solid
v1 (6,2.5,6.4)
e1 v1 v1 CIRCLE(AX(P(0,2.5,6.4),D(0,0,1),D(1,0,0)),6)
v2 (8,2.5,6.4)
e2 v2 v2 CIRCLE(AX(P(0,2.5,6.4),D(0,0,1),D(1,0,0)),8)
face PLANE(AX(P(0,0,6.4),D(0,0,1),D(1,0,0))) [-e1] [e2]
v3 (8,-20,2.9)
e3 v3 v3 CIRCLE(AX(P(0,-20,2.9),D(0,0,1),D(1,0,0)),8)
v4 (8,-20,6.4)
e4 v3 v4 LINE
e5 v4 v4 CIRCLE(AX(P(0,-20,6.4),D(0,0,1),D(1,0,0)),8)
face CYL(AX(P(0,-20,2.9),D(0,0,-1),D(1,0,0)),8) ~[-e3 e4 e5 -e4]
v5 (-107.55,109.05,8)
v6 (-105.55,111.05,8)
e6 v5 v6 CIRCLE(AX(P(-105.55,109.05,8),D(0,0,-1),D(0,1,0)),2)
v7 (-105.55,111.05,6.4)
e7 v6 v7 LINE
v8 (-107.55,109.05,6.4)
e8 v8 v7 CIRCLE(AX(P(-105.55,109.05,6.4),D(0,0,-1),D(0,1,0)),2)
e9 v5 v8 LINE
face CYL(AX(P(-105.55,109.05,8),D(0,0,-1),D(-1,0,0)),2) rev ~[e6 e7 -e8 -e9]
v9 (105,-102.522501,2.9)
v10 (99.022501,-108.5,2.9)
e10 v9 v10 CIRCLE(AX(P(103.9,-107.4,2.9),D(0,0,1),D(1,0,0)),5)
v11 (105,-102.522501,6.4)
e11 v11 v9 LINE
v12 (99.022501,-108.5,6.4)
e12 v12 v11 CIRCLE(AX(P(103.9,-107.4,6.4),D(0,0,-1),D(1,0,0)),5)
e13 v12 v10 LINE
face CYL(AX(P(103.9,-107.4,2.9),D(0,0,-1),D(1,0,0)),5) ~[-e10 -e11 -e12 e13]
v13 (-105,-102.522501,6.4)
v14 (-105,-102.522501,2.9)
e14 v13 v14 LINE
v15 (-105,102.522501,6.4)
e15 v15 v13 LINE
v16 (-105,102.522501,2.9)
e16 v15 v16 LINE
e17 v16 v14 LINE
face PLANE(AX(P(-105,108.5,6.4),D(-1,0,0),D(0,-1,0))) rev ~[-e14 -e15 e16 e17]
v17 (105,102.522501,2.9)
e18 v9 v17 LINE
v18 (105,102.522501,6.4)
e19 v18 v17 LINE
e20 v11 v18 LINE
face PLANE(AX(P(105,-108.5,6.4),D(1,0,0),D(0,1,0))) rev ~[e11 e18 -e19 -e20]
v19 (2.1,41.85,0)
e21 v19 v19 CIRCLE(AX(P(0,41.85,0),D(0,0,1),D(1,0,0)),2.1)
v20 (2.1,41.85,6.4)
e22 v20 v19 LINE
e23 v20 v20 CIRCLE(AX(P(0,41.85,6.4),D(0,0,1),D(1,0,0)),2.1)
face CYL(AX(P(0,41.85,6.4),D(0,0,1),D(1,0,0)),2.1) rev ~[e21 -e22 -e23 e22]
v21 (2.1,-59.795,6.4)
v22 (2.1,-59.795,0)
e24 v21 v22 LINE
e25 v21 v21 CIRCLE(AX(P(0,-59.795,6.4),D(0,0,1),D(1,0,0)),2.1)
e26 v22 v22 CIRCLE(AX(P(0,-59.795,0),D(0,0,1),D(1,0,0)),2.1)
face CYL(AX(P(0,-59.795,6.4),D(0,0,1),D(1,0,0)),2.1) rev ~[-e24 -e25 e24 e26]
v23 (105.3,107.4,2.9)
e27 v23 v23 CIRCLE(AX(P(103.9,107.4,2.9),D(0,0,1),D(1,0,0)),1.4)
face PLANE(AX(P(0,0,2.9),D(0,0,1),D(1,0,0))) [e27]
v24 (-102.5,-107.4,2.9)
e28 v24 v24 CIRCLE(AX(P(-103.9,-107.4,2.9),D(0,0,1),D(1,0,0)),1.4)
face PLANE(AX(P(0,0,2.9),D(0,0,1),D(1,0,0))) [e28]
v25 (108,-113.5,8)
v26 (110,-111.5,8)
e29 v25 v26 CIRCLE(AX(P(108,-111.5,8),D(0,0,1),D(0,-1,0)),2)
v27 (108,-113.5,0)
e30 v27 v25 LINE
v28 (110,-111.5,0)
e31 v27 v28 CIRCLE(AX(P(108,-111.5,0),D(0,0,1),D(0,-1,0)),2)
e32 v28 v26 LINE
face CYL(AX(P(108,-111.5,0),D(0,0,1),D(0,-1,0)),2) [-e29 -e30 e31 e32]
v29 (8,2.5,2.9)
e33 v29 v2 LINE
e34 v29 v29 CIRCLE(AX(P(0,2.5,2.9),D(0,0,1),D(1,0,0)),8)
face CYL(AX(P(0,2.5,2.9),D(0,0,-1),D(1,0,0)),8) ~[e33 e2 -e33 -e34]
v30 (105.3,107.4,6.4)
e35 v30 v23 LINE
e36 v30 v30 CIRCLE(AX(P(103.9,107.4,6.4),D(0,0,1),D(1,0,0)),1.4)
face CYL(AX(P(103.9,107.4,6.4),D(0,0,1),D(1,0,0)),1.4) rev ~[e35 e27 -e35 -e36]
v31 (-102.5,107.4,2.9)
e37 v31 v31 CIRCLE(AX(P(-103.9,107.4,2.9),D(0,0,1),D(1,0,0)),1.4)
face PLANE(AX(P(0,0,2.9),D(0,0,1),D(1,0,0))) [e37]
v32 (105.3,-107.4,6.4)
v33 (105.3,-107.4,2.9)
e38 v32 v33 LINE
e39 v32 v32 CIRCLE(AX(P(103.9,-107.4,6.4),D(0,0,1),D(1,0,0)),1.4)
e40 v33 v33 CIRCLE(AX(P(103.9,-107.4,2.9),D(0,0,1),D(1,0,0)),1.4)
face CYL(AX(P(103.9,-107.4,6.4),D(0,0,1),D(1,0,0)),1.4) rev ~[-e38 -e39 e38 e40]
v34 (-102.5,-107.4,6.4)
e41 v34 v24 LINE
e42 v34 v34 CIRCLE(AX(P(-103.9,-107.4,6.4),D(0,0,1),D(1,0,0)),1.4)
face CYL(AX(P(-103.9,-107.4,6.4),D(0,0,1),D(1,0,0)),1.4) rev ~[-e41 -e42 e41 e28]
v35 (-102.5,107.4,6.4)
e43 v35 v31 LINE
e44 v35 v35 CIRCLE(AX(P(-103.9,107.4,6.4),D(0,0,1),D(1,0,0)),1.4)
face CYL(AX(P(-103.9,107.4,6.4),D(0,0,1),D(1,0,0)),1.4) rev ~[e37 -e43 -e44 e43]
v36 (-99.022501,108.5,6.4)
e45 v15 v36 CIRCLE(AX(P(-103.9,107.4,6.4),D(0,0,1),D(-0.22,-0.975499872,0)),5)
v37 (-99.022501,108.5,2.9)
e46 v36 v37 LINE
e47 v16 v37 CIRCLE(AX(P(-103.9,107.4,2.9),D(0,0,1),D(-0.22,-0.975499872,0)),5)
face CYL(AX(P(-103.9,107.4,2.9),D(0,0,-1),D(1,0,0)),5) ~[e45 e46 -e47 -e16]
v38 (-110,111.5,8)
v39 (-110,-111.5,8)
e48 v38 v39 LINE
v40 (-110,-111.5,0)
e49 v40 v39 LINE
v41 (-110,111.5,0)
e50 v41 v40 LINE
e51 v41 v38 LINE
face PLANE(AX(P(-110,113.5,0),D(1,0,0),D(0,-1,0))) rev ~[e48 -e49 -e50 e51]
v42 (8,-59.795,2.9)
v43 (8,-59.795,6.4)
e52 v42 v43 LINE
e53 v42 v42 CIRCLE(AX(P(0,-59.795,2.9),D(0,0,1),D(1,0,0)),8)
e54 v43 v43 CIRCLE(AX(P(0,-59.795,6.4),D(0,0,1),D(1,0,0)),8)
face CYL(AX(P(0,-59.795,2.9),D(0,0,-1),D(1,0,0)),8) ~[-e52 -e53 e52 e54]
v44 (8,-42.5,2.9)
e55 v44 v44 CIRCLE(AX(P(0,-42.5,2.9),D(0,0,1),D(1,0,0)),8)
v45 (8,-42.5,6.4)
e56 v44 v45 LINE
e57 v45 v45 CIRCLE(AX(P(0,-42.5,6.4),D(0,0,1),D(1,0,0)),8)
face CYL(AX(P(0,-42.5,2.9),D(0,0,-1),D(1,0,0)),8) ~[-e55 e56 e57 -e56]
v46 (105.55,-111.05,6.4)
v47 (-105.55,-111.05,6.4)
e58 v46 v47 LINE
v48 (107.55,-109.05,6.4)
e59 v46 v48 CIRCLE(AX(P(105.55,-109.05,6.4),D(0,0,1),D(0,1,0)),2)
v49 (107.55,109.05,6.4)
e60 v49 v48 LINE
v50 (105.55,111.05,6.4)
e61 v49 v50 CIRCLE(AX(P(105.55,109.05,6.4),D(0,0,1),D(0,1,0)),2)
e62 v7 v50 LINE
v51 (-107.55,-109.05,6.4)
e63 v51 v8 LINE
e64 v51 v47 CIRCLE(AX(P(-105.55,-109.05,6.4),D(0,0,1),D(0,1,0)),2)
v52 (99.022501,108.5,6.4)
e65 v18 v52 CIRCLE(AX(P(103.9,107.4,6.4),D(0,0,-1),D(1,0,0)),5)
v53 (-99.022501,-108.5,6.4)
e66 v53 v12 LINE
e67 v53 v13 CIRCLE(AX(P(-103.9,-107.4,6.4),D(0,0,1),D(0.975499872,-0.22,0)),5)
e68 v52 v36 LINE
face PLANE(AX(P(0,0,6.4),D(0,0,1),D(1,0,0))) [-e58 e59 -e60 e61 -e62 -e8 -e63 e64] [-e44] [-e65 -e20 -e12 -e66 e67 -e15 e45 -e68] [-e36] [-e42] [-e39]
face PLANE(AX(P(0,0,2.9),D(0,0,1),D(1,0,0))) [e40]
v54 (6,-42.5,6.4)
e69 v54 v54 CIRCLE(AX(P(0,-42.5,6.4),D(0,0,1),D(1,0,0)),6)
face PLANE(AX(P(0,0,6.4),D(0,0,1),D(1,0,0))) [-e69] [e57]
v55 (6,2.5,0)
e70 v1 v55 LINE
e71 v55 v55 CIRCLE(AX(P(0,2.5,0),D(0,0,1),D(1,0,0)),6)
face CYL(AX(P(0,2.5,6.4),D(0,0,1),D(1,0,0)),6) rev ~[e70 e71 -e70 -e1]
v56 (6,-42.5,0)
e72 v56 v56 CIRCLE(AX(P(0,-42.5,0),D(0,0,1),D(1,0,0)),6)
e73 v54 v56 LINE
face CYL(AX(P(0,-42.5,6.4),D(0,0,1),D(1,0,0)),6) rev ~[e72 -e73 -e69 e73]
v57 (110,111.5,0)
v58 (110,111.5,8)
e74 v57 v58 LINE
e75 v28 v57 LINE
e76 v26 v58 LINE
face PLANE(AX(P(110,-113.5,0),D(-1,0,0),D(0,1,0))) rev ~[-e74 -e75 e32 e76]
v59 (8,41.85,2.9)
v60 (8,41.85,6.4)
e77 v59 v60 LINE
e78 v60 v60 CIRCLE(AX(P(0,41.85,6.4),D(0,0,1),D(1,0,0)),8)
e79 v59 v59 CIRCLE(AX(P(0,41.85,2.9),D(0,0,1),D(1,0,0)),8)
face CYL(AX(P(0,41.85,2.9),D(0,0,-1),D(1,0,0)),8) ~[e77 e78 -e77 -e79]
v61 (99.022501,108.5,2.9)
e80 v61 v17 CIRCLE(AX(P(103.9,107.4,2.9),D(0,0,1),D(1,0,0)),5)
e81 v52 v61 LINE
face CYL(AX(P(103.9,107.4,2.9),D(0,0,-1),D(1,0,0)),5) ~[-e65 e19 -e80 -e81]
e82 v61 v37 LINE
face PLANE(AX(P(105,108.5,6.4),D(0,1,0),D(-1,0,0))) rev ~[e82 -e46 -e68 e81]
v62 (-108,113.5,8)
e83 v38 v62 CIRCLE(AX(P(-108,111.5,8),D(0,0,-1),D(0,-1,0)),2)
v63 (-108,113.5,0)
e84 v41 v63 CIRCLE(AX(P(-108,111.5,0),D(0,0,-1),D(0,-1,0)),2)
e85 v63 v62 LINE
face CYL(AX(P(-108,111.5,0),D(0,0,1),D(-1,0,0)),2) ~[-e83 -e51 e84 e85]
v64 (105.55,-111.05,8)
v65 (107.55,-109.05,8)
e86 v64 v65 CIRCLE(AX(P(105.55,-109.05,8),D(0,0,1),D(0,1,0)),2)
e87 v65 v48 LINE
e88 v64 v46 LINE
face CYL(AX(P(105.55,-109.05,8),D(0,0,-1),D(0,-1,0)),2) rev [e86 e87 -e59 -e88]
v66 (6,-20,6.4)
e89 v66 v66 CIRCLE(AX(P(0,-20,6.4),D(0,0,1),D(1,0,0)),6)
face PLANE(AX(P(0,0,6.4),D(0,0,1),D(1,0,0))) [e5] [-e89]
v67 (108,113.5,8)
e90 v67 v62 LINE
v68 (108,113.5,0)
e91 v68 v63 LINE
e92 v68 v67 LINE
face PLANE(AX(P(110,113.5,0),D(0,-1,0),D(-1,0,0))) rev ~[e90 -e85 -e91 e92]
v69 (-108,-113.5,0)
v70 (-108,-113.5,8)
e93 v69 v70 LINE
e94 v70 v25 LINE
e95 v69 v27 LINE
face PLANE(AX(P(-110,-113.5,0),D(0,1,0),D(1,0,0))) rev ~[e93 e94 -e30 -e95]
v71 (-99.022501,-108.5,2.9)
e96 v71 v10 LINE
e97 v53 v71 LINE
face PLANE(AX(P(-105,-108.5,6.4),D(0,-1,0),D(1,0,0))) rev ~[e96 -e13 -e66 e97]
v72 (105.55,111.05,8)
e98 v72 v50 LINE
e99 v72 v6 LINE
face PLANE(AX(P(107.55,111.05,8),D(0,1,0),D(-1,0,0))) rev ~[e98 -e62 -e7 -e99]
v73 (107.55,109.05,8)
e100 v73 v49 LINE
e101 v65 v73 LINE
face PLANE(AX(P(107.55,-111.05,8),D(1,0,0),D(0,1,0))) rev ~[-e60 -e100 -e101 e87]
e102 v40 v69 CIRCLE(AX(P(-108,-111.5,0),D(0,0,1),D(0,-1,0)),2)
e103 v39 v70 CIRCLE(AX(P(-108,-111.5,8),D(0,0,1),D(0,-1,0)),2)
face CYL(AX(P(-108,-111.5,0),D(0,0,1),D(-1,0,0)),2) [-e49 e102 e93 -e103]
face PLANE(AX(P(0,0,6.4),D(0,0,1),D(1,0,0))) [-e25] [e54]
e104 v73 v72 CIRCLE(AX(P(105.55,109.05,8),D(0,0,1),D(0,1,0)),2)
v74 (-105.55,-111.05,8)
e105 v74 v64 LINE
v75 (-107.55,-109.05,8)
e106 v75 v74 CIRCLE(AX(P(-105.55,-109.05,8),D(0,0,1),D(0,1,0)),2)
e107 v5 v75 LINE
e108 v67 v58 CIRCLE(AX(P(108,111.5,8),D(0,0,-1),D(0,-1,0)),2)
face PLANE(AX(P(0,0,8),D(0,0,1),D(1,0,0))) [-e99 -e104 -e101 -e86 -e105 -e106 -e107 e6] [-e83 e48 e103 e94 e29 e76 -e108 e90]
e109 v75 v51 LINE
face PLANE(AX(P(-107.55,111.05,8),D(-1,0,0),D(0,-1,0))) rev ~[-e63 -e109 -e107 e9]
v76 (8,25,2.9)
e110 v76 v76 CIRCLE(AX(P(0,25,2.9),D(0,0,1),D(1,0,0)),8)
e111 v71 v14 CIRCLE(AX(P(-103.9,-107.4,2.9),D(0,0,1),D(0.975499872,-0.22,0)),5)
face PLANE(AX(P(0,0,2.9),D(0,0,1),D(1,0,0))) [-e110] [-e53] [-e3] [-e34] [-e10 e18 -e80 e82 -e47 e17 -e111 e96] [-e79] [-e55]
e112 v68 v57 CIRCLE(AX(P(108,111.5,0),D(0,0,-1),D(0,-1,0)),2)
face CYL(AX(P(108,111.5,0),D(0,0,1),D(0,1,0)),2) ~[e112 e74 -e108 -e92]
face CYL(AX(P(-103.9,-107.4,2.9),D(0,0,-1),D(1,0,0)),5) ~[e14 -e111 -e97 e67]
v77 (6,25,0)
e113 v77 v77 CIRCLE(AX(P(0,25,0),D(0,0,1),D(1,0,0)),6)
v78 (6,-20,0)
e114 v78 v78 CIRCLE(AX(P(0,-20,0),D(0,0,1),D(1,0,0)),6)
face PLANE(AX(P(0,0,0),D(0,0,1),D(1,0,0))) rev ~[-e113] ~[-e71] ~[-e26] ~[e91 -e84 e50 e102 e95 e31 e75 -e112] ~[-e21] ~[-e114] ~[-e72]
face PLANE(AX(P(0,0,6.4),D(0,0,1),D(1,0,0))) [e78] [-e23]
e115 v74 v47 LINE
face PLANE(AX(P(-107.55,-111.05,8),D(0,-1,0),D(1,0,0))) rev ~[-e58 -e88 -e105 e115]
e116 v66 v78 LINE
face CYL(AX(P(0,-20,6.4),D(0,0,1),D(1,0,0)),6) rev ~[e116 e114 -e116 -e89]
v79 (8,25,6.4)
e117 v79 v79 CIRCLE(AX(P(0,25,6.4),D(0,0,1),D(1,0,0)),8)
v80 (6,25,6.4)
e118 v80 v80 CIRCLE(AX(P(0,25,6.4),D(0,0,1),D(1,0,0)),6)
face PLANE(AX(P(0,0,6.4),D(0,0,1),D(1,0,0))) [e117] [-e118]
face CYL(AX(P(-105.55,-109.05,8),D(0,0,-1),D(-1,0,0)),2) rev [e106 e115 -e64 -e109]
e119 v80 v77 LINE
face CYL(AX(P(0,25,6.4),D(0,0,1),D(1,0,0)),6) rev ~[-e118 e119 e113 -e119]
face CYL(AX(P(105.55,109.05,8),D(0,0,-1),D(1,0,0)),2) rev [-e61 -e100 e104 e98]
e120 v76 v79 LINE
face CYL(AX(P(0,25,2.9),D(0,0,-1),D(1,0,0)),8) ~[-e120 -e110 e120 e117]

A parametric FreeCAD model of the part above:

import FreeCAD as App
import Part
import Sketcher


def edges_at(feature, points):
    """Names of the edges that pass closest to the given points."""
    edges = feature.Shape.Edges
    near = lambda p: min(range(len(edges)), key=lambda i: edges[i].distToShape(Part.Vertex(*p))[0])
    return sorted({f"Edge{near(p) + 1}" for p in points})

doc = App.newDocument("Part")
body = doc.addObject("PartDesign::Body", "Body")

# Sketch on XY plane
sketch1 = body.newObject("Sketcher::SketchObject", "Sketch")
sketch1.AttachmentSupport = (doc.getObject("XY_Plane"), [""])
sketch1.MapMode = "FlatFace"
sketch1.addGeometry([
    Part.LineSegment(App.Vector(-110, 114, 0), App.Vector(-110, -114, 0)),
    Part.LineSegment(App.Vector(-110, -114, 0), App.Vector(110, -114, 0)),
    Part.LineSegment(App.Vector(110, -114, 0), App.Vector(110, 114, 0)),
    Part.LineSegment(App.Vector(110, 114, 0), App.Vector(-110, 114, 0)),
], False)
sketch1.addConstraint([
    Sketcher.Constraint("Coincident", 0, 2, 1, 1),
    Sketcher.Constraint("Coincident", 1, 2, 2, 1),
    Sketcher.Constraint("Coincident", 2, 2, 3, 1),
    Sketcher.Constraint("Coincident", 3, 2, 0, 1),
    Sketcher.Constraint("Vertical", 0),
    Sketcher.Constraint("Horizontal", 1),
    Sketcher.Constraint("Vertical", 2),
    Sketcher.Constraint("Horizontal", 3),
    Sketcher.Constraint("Symmetric", 0, 2, 2, 2, -1, 1),
    Sketcher.Constraint("DistanceX", 1, 1, 1, 2, 220.0),
    Sketcher.Constraint("DistanceY", 0, 2, 0, 1, 227.0),
])
pad1 = body.newObject("PartDesign::Pad", "Pad")
pad1.Profile = sketch1
pad1.Length = 8

# Sketch on XY plane
sketch2 = body.newObject("Sketcher::SketchObject", "Sketch001")
sketch2.AttachmentSupport = (doc.getObject("XY_Plane"), [""])
sketch2.MapMode = "FlatFace"
sketch2.AttachmentOffset = App.Placement(App.Vector(0, 0, 8), App.Rotation())
sketch2.addGeometry([
    Part.LineSegment(App.Vector(-108, 111, 0), App.Vector(-108, -111, 0)),
    Part.LineSegment(App.Vector(-108, -111, 0), App.Vector(108, -111, 0)),
    Part.LineSegment(App.Vector(108, -111, 0), App.Vector(108, 111, 0)),
    Part.LineSegment(App.Vector(108, 111, 0), App.Vector(-108, 111, 0)),
], False)
sketch2.addConstraint([
    Sketcher.Constraint("Coincident", 0, 2, 1, 1),
    Sketcher.Constraint("Coincident", 1, 2, 2, 1),
    Sketcher.Constraint("Coincident", 2, 2, 3, 1),
    Sketcher.Constraint("Coincident", 3, 2, 0, 1),
    Sketcher.Constraint("Vertical", 0),
    Sketcher.Constraint("Horizontal", 1),
    Sketcher.Constraint("Vertical", 2),
    Sketcher.Constraint("Horizontal", 3),
    Sketcher.Constraint("Symmetric", 0, 2, 2, 2, -1, 1),
    Sketcher.Constraint("DistanceX", 1, 1, 1, 2, 215.1),
    Sketcher.Constraint("DistanceY", 0, 2, 0, 1, 222.1),
])
pocket1 = body.newObject("PartDesign::Pocket", "Pocket")
pocket1.Profile = sketch2
pocket1.Length = 1.6

# Sketch on XY plane
sketch3 = body.newObject("Sketcher::SketchObject", "Sketch002")
sketch3.AttachmentSupport = (doc.getObject("XY_Plane"), [""])
sketch3.MapMode = "FlatFace"
sketch3.AttachmentOffset = App.Placement(App.Vector(0, 0, 6.4), App.Rotation())
sketch3.addGeometry([
    Part.LineSegment(App.Vector(-105, 108, 0), App.Vector(-105, -108, 0)),
    Part.LineSegment(App.Vector(-105, -108, 0), App.Vector(105, -108, 0)),
    Part.LineSegment(App.Vector(105, -108, 0), App.Vector(105, 108, 0)),
    Part.LineSegment(App.Vector(105, 108, 0), App.Vector(-105, 108, 0)),
], False)
sketch3.addConstraint([
    Sketcher.Constraint("Coincident", 0, 2, 1, 1),
    Sketcher.Constraint("Coincident", 1, 2, 2, 1),
    Sketcher.Constraint("Coincident", 2, 2, 3, 1),
    Sketcher.Constraint("Coincident", 3, 2, 0, 1),
    Sketcher.Constraint("Vertical", 0),
    Sketcher.Constraint("Horizontal", 1),
    Sketcher.Constraint("Vertical", 2),
    Sketcher.Constraint("Horizontal", 3),
    Sketcher.Constraint("Symmetric", 0, 2, 2, 2, -1, 1),
    Sketcher.Constraint("DistanceX", 1, 1, 1, 2, 210.0),
    Sketcher.Constraint("DistanceY", 0, 2, 0, 1, 217.0),
])
pocket2 = body.newObject("PartDesign::Pocket", "Pocket001")
pocket2.Profile = sketch3
pocket2.Length = 3.5
doc.recompute()

fillet = body.newObject("PartDesign::Fillet", "Fillet")
fillet.Base = (pocket2, edges_at(pocket2, [
    (-107.55, -111.05, 7.2),
    (-110, -113.5, 4),
    (110, -113.5, 4),
    (107.55, -111.05, 7.2),
    (110, 113.5, 4),
    (107.55, 111.05, 7.2),
    (-110, 113.5, 4),
    (-107.55, 111.05, 7.2),
]))
fillet.Radius = 2

# Sketch on XY plane
sketch4 = body.newObject("Sketcher::SketchObject", "Sketch003")
sketch4.AttachmentSupport = (doc.getObject("XY_Plane"), [""])
sketch4.MapMode = "FlatFace"
sketch4.AttachmentOffset = App.Placement(App.Vector(0, 0, 2.9), App.Rotation())
sketch4.addGeometry([
    Part.Circle(App.Vector(-104, 107, 0), App.Vector(0, 0, 1), 5),
    Part.Circle(App.Vector(-104, -107, 0), App.Vector(0, 0, 1), 5),
    Part.Circle(App.Vector(104, -107, 0), App.Vector(0, 0, 1), 5),
    Part.Circle(App.Vector(104, 107, 0), App.Vector(0, 0, 1), 5),
], False)
sketch4.addConstraint([
    Sketcher.Constraint("Equal", 0, 1),
    Sketcher.Constraint("Equal", 1, 2),
    Sketcher.Constraint("Equal", 2, 3),
    Sketcher.Constraint("Symmetric", 0, 3, 2, 3, -1, 1),
    Sketcher.Constraint("Symmetric", 1, 3, 3, 3, -1, 1),
    Sketcher.Constraint("Symmetric", 1, 3, 2, 3, -2),
    Sketcher.Constraint("Diameter", 0, 10.0),
    Sketcher.Constraint("DistanceY", 1, 3, 0, 3, 214.8),
    Sketcher.Constraint("DistanceX", 1, 3, 2, 3, 207.8),
])
pad2 = body.newObject("PartDesign::Pad", "Pad001")
pad2.Profile = sketch4
pad2.Length = 3.5

# Sketch on XY plane
sketch5 = body.newObject("Sketcher::SketchObject", "Sketch004")
sketch5.AttachmentSupport = (doc.getObject("XY_Plane"), [""])
sketch5.MapMode = "FlatFace"
sketch5.AttachmentOffset = App.Placement(App.Vector(0, 0, 6.4), App.Rotation())
sketch5.addGeometry([
    Part.Circle(App.Vector(-103.9, 107.4, 0), App.Vector(0, 0, 1), 1.4),
    Part.Circle(App.Vector(103.9, 107.4, 0), App.Vector(0, 0, 1), 1.4),
    Part.Circle(App.Vector(103.9, -107.4, 0), App.Vector(0, 0, 1), 1.4),
    Part.Circle(App.Vector(-103.9, -107.4, 0), App.Vector(0, 0, 1), 1.4),
], False)
sketch5.addConstraint([
    Sketcher.Constraint("Equal", 0, 1),
    Sketcher.Constraint("Equal", 1, 2),
    Sketcher.Constraint("Equal", 2, 3),
    Sketcher.Constraint("Symmetric", 0, 3, 2, 3, -1, 1),
    Sketcher.Constraint("Symmetric", 1, 3, 3, 3, -1, 1),
    Sketcher.Constraint("Symmetric", 0, 3, 1, 3, -2),
    Sketcher.Constraint("Diameter", 0, 2.8),
    Sketcher.Constraint("DistanceX", 0, 3, -1, 1, 103.9),
    Sketcher.Constraint("DistanceY", -1, 1, 0, 3, 107.4),
])
pocket3 = body.newObject("PartDesign::Pocket", "Pocket002")
pocket3.Profile = sketch5
pocket3.Length = 3.5

# Sketch on XY plane
sketch6 = body.newObject("Sketcher::SketchObject", "Sketch005")
sketch6.AttachmentSupport = (doc.getObject("XY_Plane"), [""])
sketch6.MapMode = "FlatFace"
sketch6.AttachmentOffset = App.Placement(App.Vector(0, 0, 2.9), App.Rotation())
sketch6.addGeometry([
    Part.Circle(App.Vector(0, -60, 0), App.Vector(0, 0, 1), 8),  # 0
    Part.Circle(App.Vector(0, 42, 0), App.Vector(0, 0, 1), 8),  # 1
    Part.Circle(App.Vector(0, -42, 0), App.Vector(0, 0, 1), 8),  # 2
    Part.Circle(App.Vector(0, -20, 0), App.Vector(0, 0, 1), 8),  # 3
    Part.Circle(App.Vector(0, 2, 0), App.Vector(0, 0, 1), 8),  # 4
    Part.Circle(App.Vector(0, 25, 0), App.Vector(0, 0, 1), 8),  # 5
], False)
sketch6.addConstraint([
    Sketcher.Constraint("Equal", 0, 1),
    Sketcher.Constraint("Equal", 1, 2),
    Sketcher.Constraint("Equal", 2, 3),
    Sketcher.Constraint("Equal", 3, 4),
    Sketcher.Constraint("Equal", 4, 5),
    Sketcher.Constraint("PointOnObject", 0, 3, -2),
    Sketcher.Constraint("PointOnObject", 1, 3, -2),
    Sketcher.Constraint("PointOnObject", 2, 3, -2),
    Sketcher.Constraint("PointOnObject", 3, 3, -2),
    Sketcher.Constraint("PointOnObject", 4, 3, -2),
    Sketcher.Constraint("PointOnObject", 5, 3, -2),
    Sketcher.Constraint("Diameter", 0, 16.0),
    Sketcher.Constraint("DistanceY", 2, 3, 3, 3, 22.5),
    Sketcher.Constraint("DistanceY", 3, 3, 4, 3, 22.5),
    Sketcher.Constraint("DistanceY", 4, 3, 5, 3, 22.5),
    Sketcher.Constraint("DistanceY", 3, 3, -1, 1, 20.0),
    Sketcher.Constraint("DistanceY", -1, 1, 1, 3, 41.85),
    Sketcher.Constraint("DistanceY", 0, 3, -1, 1, 59.795),
])
pad3 = body.newObject("PartDesign::Pad", "Pad002")
pad3.Profile = sketch6
pad3.Length = 3.5

# Sketch on XY plane
sketch7 = body.newObject("Sketcher::SketchObject", "Sketch006")
sketch7.AttachmentSupport = (doc.getObject("XY_Plane"), [""])
sketch7.MapMode = "FlatFace"
sketch7.AttachmentOffset = App.Placement(App.Vector(0, 0, 6.4), App.Rotation())
sketch7.addGeometry([
    Part.Circle(App.Vector(0, 41.9, 0), App.Vector(0, 0, 1), 2.1),  # 0
    Part.Circle(App.Vector(0, 25, 0), App.Vector(0, 0, 1), 6),  # 1
    Part.Circle(App.Vector(0, 2.5, 0), App.Vector(0, 0, 1), 6),  # 2
    Part.Circle(App.Vector(0, -20, 0), App.Vector(0, 0, 1), 6),  # 3
    Part.Circle(App.Vector(0, -42.5, 0), App.Vector(0, 0, 1), 6),  # 4
    Part.Circle(App.Vector(0, -59.8, 0), App.Vector(0, 0, 1), 2.1),  # 5
], False)
sketch7.addConstraint([
    Sketcher.Constraint("Equal", 1, 2),
    Sketcher.Constraint("Equal", 2, 3),
    Sketcher.Constraint("Equal", 3, 4),
    Sketcher.Constraint("Equal", 0, 5),
    Sketcher.Constraint("PointOnObject", 0, 3, -2),
    Sketcher.Constraint("PointOnObject", 1, 3, -2),
    Sketcher.Constraint("PointOnObject", 2, 3, -2),
    Sketcher.Constraint("PointOnObject", 3, 3, -2),
    Sketcher.Constraint("PointOnObject", 4, 3, -2),
    Sketcher.Constraint("PointOnObject", 5, 3, -2),
    Sketcher.Constraint("Diameter", 1, 12.0),
    Sketcher.Constraint("Diameter", 0, 4.2),
    Sketcher.Constraint("DistanceY", -1, 1, 1, 3, 25.0),
    Sketcher.Constraint("DistanceY", 3, 3, -1, 1, 20.0),
    Sketcher.Constraint("DistanceY", 4, 3, 2, 3, 45.0),
    Sketcher.Constraint("DistanceY", -1, 1, 2, 3, 2.5),
    Sketcher.Constraint("DistanceY", -1, 1, 0, 3, 41.85),
    Sketcher.Constraint("DistanceY", 5, 3, -1, 1, 59.795),
])
pocket4 = body.newObject("PartDesign::Pocket", "Pocket003")
pocket4.Profile = sketch7
pocket4.Type = "ThroughAll"

doc.recompute()
